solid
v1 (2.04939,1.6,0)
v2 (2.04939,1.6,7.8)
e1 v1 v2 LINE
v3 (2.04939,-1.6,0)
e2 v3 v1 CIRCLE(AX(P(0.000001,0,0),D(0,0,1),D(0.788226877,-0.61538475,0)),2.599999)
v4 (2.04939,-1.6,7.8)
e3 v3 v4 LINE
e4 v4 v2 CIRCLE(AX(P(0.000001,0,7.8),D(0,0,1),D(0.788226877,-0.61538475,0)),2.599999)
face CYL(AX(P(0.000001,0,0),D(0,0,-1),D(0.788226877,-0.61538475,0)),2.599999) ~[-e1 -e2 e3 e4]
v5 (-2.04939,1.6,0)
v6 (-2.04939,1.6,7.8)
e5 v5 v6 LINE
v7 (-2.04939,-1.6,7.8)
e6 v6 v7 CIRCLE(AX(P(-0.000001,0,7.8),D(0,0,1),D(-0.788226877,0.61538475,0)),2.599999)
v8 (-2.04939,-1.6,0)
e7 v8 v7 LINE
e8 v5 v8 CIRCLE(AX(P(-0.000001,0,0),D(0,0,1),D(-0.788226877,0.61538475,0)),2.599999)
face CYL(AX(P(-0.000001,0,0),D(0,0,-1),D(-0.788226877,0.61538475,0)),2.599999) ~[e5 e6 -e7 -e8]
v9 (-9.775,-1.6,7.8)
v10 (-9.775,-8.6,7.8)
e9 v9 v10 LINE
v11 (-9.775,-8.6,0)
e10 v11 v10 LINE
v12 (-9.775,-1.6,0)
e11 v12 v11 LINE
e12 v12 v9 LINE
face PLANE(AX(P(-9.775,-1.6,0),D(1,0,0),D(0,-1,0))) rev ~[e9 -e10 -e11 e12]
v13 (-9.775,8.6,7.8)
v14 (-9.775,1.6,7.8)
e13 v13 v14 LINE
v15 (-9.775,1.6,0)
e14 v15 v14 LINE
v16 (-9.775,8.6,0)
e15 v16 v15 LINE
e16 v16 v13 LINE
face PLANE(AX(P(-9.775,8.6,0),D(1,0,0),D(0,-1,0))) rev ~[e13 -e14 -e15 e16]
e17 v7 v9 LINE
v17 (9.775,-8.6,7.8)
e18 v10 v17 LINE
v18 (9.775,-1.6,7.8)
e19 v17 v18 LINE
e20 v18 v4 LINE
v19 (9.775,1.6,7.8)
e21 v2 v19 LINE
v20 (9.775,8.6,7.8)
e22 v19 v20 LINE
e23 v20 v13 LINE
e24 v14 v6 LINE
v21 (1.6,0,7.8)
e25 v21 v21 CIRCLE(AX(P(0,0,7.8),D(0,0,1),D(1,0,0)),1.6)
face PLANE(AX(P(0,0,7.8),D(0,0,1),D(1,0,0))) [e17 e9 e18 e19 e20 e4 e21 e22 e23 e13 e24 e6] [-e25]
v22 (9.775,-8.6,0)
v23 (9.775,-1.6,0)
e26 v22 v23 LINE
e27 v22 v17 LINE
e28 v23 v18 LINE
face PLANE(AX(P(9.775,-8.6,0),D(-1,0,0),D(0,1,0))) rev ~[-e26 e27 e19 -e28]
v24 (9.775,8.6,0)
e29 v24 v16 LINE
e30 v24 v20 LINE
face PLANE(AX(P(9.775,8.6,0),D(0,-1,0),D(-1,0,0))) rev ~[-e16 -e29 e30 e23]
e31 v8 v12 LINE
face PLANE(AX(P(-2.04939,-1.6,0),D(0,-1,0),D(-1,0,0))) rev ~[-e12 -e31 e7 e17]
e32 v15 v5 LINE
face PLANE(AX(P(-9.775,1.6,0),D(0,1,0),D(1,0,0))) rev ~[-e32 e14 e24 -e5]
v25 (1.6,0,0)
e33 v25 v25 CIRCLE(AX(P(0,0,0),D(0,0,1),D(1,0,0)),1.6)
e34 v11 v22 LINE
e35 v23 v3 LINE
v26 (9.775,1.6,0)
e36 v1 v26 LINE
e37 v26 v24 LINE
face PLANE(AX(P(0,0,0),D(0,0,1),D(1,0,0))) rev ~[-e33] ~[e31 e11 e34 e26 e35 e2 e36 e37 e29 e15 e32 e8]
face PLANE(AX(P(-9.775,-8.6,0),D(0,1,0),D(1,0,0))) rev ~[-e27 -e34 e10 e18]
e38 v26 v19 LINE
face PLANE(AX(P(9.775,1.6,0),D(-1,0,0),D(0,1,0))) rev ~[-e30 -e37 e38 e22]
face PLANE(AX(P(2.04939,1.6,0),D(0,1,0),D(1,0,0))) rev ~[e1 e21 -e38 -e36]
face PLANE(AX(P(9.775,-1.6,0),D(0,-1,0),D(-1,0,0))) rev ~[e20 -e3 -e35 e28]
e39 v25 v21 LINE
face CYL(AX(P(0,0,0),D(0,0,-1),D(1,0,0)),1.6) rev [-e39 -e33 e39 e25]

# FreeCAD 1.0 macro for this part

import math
import FreeCAD as App
import Part
import Sketcher
from FreeCAD import Vector
Q = App.Units.Quantity

doc = App.newDocument("Part")
params = doc.addObject("Spreadsheet::Sheet", "Params")
for row, (alias, value) in enumerate([
    ("sketch1_diameter", "3.2 mm"),
    ("sketch1_radius", "2.599999 mm"),
    ("sketch1_height", "7 mm"),
    ("sketch1_width", "19.55 mm"),
    ("pad1_length", "7.8 mm"),
], start=1):
    params.set(f"A{row}", alias)
    params.set(f"B{row}", "=" + value)
    params.setAlias(f"B{row}", alias)

body = doc.addObject("PartDesign::Body", "Body")

# Sketch on XY plane
sketch1 = doc.addObject("Sketcher::SketchObject", "Sketch")
body.addObject(sketch1)
sketch1.AttachmentSupport = (doc.XY_Plane, [""])
sketch1.MapMode = "FlatFace"
sketch1.addGeometry(Part.LineSegment(Vector(9.775, 1.6, 0), Vector(9.775, 8.6, 0)), False)
sketch1.addGeometry(Part.LineSegment(Vector(9.775, 8.6, 0), Vector(-9.775, 8.6, 0)), False)
sketch1.addGeometry(Part.LineSegment(Vector(-9.775, 8.6, 0), Vector(-9.775, 1.6, 0)), False)
sketch1.addGeometry(Part.LineSegment(Vector(-9.775, 1.6, 0), Vector(-2.04939, 1.6, 0)), False)
sketch1.addGeometry(Part.ArcOfCircle(Part.Circle(Vector(-0.000001, 0, 0), Vector(0, 0, 1), 2.599999), math.radians(142.020118), math.radians(217.979882)), False)
sketch1.addGeometry(Part.LineSegment(Vector(-2.04939, -1.6, 0), Vector(-9.775, -1.6, 0)), False)
sketch1.addGeometry(Part.LineSegment(Vector(-9.775, -1.6, 0), Vector(-9.775, -8.6, 0)), False)
sketch1.addGeometry(Part.LineSegment(Vector(-9.775, -8.6, 0), Vector(9.775, -8.6, 0)), False)
sketch1.addGeometry(Part.LineSegment(Vector(9.775, -8.6, 0), Vector(9.775, -1.6, 0)), False)
sketch1.addGeometry(Part.LineSegment(Vector(9.775, -1.6, 0), Vector(2.04939, -1.6, 0)), False)
sketch1.addGeometry(Part.ArcOfCircle(Part.Circle(Vector(0.000001, 0, 0), Vector(0, 0, 1), 2.599999), math.radians(-37.979882), math.radians(37.979882)), False)
sketch1.addGeometry(Part.LineSegment(Vector(2.04939, 1.6, 0), Vector(9.775, 1.6, 0)), False)
sketch1.addGeometry(Part.Circle(Vector(0, 0, 0), Vector(0, 0, 1), 1.6), False)
sketch1.addConstraint(Sketcher.Constraint("Coincident", 0, 2, 1, 1))
sketch1.addConstraint(Sketcher.Constraint("Coincident", 1, 2, 2, 1))
sketch1.addConstraint(Sketcher.Constraint("Coincident", 2, 2, 3, 1))
sketch1.addConstraint(Sketcher.Constraint("Coincident", 3, 2, 4, 1))
sketch1.addConstraint(Sketcher.Constraint("Coincident", 4, 2, 5, 1))
sketch1.addConstraint(Sketcher.Constraint("Coincident", 5, 2, 6, 1))
sketch1.addConstraint(Sketcher.Constraint("Coincident", 6, 2, 7, 1))
sketch1.addConstraint(Sketcher.Constraint("Coincident", 7, 2, 8, 1))
sketch1.addConstraint(Sketcher.Constraint("Coincident", 8, 2, 9, 1))
sketch1.addConstraint(Sketcher.Constraint("Coincident", 9, 2, 10, 1))
sketch1.addConstraint(Sketcher.Constraint("Coincident", 10, 2, 11, 1))
sketch1.addConstraint(Sketcher.Constraint("Coincident", 11, 2, 0, 1))
sketch1.addConstraint(Sketcher.Constraint("Vertical", 0))
sketch1.addConstraint(Sketcher.Constraint("Horizontal", 1))
sketch1.addConstraint(Sketcher.Constraint("Vertical", 2))
sketch1.addConstraint(Sketcher.Constraint("Horizontal", 3))
sketch1.addConstraint(Sketcher.Constraint("Horizontal", 5))
sketch1.addConstraint(Sketcher.Constraint("Vertical", 6))
sketch1.addConstraint(Sketcher.Constraint("Horizontal", 7))
sketch1.addConstraint(Sketcher.Constraint("Vertical", 8))
sketch1.addConstraint(Sketcher.Constraint("Horizontal", 9))
sketch1.addConstraint(Sketcher.Constraint("Horizontal", 11))
sketch1.addConstraint(Sketcher.Constraint("Coincident", 4, 3, -1, 1))
sketch1.addConstraint(Sketcher.Constraint("Coincident", 10, 3, -1, 1))
sketch1.addConstraint(Sketcher.Constraint("Coincident", 12, 3, -1, 1))
sketch1.addConstraint(Sketcher.Constraint("Equal", 4, 10))
sketch1.addConstraint(Sketcher.Constraint("Symmetric", 0, 2, 6, 2, -1, 1))
sketch1.addConstraint(Sketcher.Constraint("Symmetric", 2, 2, 8, 2, -1, 1))
sketch1.addConstraint(Sketcher.Constraint("Symmetric", 5, 2, 8, 2, -2))
sketch1.addConstraint(Sketcher.Constraint("Horizontal", 3, 2, 10, 2))
sketch1.addConstraint(Sketcher.Constraint("Diameter", 12, Q("3.2 mm")))
sketch1.addConstraint(Sketcher.Constraint("Radius", 4, Q("2.599999 mm")))
sketch1.addConstraint(Sketcher.Constraint("DistanceY", 0, 1, 0, 2, Q("7 mm")))
sketch1.addConstraint(Sketcher.Constraint("DistanceX", 1, 2, 1, 1, Q("19.55 mm")))
sketch1.addConstraint(Sketcher.Constraint("DistanceY", -1, 1, 0, 2, Q("8.6 mm")))
sketch1.setExpression("Constraints[30]", "Params.sketch1_diameter")
sketch1.setExpression("Constraints[31]", "Params.sketch1_radius")
sketch1.setExpression("Constraints[32]", "Params.sketch1_height")
sketch1.setExpression("Constraints[33]", "Params.sketch1_width")
pad1 = doc.addObject("PartDesign::Pad", "Pad")
body.addObject(pad1)
pad1.Profile = sketch1
pad1.setExpression("Length", "Params.pad1_length")

doc.recompute()
